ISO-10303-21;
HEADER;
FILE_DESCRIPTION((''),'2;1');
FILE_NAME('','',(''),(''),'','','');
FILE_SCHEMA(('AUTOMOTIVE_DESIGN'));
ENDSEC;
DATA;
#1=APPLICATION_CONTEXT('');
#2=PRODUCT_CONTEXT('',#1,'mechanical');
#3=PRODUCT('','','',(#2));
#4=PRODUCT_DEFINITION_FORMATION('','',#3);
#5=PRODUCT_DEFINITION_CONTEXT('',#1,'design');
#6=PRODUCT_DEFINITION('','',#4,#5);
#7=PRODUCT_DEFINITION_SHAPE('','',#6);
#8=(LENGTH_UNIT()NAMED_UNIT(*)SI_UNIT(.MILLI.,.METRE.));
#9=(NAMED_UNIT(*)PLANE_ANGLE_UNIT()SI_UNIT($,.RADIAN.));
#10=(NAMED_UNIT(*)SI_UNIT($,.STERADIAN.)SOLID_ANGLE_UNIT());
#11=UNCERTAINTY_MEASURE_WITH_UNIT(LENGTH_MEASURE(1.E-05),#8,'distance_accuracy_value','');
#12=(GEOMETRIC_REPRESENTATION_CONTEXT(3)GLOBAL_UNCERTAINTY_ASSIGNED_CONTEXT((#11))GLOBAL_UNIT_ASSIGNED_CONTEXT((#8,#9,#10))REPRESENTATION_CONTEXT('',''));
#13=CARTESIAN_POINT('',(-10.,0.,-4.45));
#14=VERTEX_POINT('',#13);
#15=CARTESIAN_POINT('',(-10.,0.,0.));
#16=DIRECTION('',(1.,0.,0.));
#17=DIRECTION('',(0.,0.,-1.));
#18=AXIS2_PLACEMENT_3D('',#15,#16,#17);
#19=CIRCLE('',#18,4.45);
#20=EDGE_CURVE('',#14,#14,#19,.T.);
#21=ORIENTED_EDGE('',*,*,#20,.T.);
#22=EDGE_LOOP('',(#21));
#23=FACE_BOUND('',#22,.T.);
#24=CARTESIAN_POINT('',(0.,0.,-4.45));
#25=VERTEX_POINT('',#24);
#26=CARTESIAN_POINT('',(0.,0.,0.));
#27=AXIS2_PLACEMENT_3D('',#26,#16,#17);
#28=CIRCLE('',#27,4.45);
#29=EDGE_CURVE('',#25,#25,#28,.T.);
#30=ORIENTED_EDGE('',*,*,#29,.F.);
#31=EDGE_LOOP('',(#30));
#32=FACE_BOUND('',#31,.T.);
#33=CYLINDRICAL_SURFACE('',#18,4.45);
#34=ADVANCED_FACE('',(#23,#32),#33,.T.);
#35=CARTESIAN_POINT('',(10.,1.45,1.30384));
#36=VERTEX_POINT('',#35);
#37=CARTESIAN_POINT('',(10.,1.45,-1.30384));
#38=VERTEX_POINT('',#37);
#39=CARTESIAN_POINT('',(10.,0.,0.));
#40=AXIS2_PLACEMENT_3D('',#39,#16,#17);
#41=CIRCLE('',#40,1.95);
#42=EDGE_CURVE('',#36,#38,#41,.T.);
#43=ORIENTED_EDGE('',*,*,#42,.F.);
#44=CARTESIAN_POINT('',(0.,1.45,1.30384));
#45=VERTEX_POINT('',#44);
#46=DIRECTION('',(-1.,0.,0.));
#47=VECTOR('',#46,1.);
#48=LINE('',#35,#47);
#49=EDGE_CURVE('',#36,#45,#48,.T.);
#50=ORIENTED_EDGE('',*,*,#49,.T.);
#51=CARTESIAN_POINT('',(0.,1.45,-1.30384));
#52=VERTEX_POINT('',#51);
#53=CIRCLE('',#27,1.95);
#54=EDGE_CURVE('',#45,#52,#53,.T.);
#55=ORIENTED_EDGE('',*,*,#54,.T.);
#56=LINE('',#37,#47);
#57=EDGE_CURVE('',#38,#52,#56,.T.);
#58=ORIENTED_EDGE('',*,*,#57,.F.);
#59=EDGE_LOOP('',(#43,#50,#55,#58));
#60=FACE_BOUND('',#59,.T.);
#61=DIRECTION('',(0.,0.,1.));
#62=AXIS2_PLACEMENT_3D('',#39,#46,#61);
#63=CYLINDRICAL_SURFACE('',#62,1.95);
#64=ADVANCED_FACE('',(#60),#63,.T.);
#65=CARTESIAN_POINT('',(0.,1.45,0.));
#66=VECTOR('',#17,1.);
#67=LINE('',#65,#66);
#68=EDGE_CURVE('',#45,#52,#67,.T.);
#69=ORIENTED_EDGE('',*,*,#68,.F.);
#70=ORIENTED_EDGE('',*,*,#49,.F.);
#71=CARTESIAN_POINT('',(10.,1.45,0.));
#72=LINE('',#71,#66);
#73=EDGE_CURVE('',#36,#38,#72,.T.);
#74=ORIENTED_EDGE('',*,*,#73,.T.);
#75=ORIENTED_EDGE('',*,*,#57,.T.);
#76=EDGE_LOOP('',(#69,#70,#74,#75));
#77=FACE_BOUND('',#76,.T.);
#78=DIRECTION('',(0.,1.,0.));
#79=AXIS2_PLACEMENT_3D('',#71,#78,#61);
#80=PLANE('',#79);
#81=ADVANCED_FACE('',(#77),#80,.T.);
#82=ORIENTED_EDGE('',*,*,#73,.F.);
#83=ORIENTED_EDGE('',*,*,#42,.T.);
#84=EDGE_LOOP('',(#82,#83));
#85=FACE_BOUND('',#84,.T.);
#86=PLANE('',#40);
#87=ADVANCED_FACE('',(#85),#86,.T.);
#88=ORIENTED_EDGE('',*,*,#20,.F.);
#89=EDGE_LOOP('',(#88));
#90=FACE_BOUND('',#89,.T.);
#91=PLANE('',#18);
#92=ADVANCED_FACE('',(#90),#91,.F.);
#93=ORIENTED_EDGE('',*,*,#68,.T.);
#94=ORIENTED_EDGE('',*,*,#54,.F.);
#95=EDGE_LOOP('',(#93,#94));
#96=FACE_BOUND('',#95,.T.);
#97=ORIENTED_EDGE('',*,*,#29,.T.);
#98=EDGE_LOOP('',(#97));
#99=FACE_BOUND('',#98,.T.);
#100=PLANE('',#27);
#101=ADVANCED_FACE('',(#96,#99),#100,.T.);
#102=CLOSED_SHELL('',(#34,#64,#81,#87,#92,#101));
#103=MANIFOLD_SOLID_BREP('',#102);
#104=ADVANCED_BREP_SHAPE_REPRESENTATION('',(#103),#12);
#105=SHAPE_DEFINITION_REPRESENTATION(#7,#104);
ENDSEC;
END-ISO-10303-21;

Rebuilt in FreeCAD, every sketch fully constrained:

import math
import FreeCAD as App
import Part
import Sketcher

V = App.Vector
Q = App.Units.Quantity

doc = App.newDocument("Part")
body = doc.addObject("PartDesign::Body", "Body")

sketch1 = body.newObject("Sketcher::SketchObject", "Sketch")
sketch1.AttachmentSupport = (doc.getObject("YZ_Plane"), [""])
sketch1.MapMode = "FlatFace"
sketch1.addGeometry([
    Part.LineSegment(V(1.4, -1.3, 0), V(1.4, 1.3, 0)),
    Part.ArcOfCircle(Part.Circle(V(0, 0, 0), V(0, 0, 1), 1.9), math.radians(42), math.radians(270)),
    Part.ArcOfCircle(Part.Circle(V(0, 0, 0), V(0, 0, 1), 2), math.radians(-90), math.radians(-42)),
], False)
sketch1.addConstraint([
    Sketcher.Constraint("Coincident", 0, 2, 1, 1),
    Sketcher.Constraint("Tangent", 1, 2, 2, 1),
    Sketcher.Constraint("Coincident", 2, 2, 0, 1),
    Sketcher.Constraint("Vertical", 0),
    Sketcher.Constraint("Coincident", 1, 3, -1, 1),
    Sketcher.Constraint("Equal", 1, 2),
    Sketcher.Constraint("PointOnObject", 1, 2, -2),
    Sketcher.Constraint("Radius", 1, Q("1.95 mm")),
    Sketcher.Constraint("DistanceX", -1, 1, 0, 2, Q("1.45 mm")),
])
pad1 = body.newObject("PartDesign::Pad", "Pad")
pad1.Profile = sketch1
pad1.Length = 10

sketch2 = body.newObject("Sketcher::SketchObject", "Sketch001")
sketch2.AttachmentSupport = (doc.getObject("YZ_Plane"), [""])
sketch2.MapMode = "FlatFace"
sketch2.addGeometry(Part.Circle(V(0, 0, 0), V(0, 0, 1), 4.5), False)
sketch2.addConstraint([
    Sketcher.Constraint("Coincident", 0, 3, -1, 1),
    Sketcher.Constraint("Diameter", 0, Q("8.9 mm")),
])
pad2 = body.newObject("PartDesign::Pad", "Pad001")
pad2.Profile = sketch2
pad2.Length = 10
pad2.Reversed = True

doc.recompute()
